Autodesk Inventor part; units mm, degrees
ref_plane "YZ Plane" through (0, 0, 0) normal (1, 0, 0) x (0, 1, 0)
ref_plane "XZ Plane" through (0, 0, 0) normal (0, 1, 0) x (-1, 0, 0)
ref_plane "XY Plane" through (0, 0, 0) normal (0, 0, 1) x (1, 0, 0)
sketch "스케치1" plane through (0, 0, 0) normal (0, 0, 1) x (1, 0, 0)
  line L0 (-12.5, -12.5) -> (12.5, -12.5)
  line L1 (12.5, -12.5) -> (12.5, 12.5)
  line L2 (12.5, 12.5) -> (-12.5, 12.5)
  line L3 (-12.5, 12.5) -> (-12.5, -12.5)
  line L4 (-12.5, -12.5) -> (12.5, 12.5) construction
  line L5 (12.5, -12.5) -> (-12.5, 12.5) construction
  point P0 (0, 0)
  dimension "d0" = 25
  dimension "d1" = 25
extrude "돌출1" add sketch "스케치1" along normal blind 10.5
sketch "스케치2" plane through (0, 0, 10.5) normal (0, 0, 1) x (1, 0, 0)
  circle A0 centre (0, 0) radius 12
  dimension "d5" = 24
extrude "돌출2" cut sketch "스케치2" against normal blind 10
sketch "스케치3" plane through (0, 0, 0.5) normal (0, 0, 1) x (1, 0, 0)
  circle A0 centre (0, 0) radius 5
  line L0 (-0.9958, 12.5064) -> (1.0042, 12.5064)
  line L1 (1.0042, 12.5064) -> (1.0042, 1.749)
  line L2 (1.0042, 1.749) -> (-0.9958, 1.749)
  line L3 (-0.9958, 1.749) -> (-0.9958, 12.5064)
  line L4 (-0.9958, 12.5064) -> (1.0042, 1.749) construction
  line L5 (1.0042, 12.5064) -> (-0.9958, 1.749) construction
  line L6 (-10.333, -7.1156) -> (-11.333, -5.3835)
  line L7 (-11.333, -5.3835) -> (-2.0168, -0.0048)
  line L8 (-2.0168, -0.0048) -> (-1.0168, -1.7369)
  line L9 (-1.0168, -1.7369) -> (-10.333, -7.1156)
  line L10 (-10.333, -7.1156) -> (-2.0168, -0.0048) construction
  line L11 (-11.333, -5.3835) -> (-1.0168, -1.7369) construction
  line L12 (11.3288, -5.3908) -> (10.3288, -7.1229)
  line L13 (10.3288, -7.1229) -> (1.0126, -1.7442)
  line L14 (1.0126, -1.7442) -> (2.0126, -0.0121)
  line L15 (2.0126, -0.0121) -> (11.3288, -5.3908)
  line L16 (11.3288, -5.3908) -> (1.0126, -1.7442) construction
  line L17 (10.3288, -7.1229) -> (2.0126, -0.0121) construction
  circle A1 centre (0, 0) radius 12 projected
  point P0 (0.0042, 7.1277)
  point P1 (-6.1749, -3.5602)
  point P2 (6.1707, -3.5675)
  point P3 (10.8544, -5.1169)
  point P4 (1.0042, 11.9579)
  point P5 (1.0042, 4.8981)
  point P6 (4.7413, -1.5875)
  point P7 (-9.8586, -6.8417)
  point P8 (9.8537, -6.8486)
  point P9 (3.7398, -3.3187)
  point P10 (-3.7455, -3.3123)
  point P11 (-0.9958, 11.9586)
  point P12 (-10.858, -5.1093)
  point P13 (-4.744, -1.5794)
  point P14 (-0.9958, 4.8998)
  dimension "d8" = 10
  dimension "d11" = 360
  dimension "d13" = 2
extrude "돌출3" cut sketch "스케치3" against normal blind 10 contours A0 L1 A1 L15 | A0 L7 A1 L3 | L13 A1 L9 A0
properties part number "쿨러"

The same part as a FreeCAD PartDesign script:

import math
import FreeCAD as App
import Part
import Sketcher
Q = App.Units.Quantity

doc = App.newDocument("Part")
body = doc.addObject("PartDesign::Body", "Body")

sketch1 = doc.addObject("Sketcher::SketchObject", "Sketch")
body.addObject(sketch1)
sketch1.AttachmentSupport = (doc.XY_Plane, [""])
sketch1.MapMode = "FlatFace"
sketch1.addGeometry(Part.LineSegment(App.Vector(-12, 12, 0), App.Vector(-12, -12, 0)), False)
sketch1.addGeometry(Part.LineSegment(App.Vector(-12, -12, 0), App.Vector(12, -12, 0)), False)
sketch1.addGeometry(Part.LineSegment(App.Vector(12, -12, 0), App.Vector(12, 12, 0)), False)
sketch1.addGeometry(Part.LineSegment(App.Vector(12, 12, 0), App.Vector(-12, 12, 0)), False)
sketch1.addConstraint(Sketcher.Constraint("Coincident", 0, 2, 1, 1))
sketch1.addConstraint(Sketcher.Constraint("Coincident", 1, 2, 2, 1))
sketch1.addConstraint(Sketcher.Constraint("Coincident", 2, 2, 3, 1))
sketch1.addConstraint(Sketcher.Constraint("Coincident", 3, 2, 0, 1))
sketch1.addConstraint(Sketcher.Constraint("Vertical", 0))
sketch1.addConstraint(Sketcher.Constraint("Horizontal", 1))
sketch1.addConstraint(Sketcher.Constraint("Vertical", 2))
sketch1.addConstraint(Sketcher.Constraint("Horizontal", 3))
sketch1.addConstraint(Sketcher.Constraint("Symmetric", 0, 2, 2, 2, -1, 1))
sketch1.addConstraint(Sketcher.Constraint("Equal", 3, 0))
sketch1.addConstraint(Sketcher.Constraint("DistanceX", 1, 1, 1, 2, Q("25 mm")))
pad1 = doc.addObject("PartDesign::Pad", "Pad")
body.addObject(pad1)
pad1.Profile = sketch1
pad1.Length = 10.5

sketch2 = doc.addObject("Sketcher::SketchObject", "Sketch001")
body.addObject(sketch2)
sketch2.AttachmentSupport = (doc.XY_Plane, [""])
sketch2.MapMode = "FlatFace"
sketch2.AttachmentOffset = App.Placement(App.Vector(0, 0, 10.5), App.Rotation())
sketch2.addGeometry(Part.Circle(App.Vector(0, 0, 0), App.Vector(0, 0, 1), 12), False)
sketch2.addConstraint(Sketcher.Constraint("Coincident", 0, 3, -1, 1))
sketch2.addConstraint(Sketcher.Constraint("Diameter", 0, Q("24 mm")))
pocket1 = doc.addObject("PartDesign::Pocket", "Pocket")
body.addObject(pocket1)
pocket1.Profile = sketch2
pocket1.Length = 10

sketch3 = doc.addObject("Sketcher::SketchObject", "Sketch002")
body.addObject(sketch3)
sketch3.AttachmentSupport = (doc.XY_Plane, [""])
sketch3.MapMode = "FlatFace"
sketch3.AttachmentOffset = App.Placement(App.Vector(0, 0, 0.5), App.Rotation())
sketch3.addGeometry(Part.ArcOfCircle(Part.Circle(App.Vector(0, 0, 0), App.Vector(0, 0, 1), 5), math.radians(-19), math.radians(78)), False)
sketch3.addGeometry(Part.LineSegment(App.Vector(5, -2, 0), App.Vector(11, -5, 0)), False)
sketch3.addGeometry(Part.ArcOfCircle(Part.Circle(App.Vector(0, 0, 0), App.Vector(0, 0, 1), 12), math.radians(-25), math.radians(85)), False)
sketch3.addGeometry(Part.LineSegment(App.Vector(1, 12, 0), App.Vector(1, 5, 0)), False)
sketch3.addGeometry(Part.ArcOfCircle(Part.Circle(App.Vector(0, 0, 0), App.Vector(0, 0, 1), 5), math.radians(101), math.radians(198)), False)
sketch3.addGeometry(Part.LineSegment(App.Vector(-1, 5, 0), App.Vector(-1, 12, 0)), False)
sketch3.addGeometry(Part.ArcOfCircle(Part.Circle(App.Vector(0, 0, 0), App.Vector(0, 0, 1), 12), math.radians(95), math.radians(205)), False)
sketch3.addGeometry(Part.LineSegment(App.Vector(-11, -5, 0), App.Vector(-5, -2, 0)), False)
sketch3.addGeometry(Part.LineSegment(App.Vector(10, -7, 0), App.Vector(4, -3, 0)), False)
sketch3.addGeometry(Part.ArcOfCircle(Part.Circle(App.Vector(0, 0, 0), App.Vector(0, 0, 1), 5), math.radians(-139), math.radians(-42)), False)
sketch3.addGeometry(Part.LineSegment(App.Vector(-4, -3, 0), App.Vector(-10, -7, 0)), False)
sketch3.addGeometry(Part.ArcOfCircle(Part.Circle(App.Vector(0, 0, 0), App.Vector(0, 0, 1), 12), math.radians(-145), math.radians(-35)), False)
sketch3.addConstraint(Sketcher.Constraint("Coincident", 0, 1, 1, 1))
sketch3.addConstraint(Sketcher.Constraint("Coincident", 1, 2, 2, 1))
sketch3.addConstraint(Sketcher.Constraint("Coincident", 2, 2, 3, 1))
sketch3.addConstraint(Sketcher.Constraint("Coincident", 3, 2, 0, 2))
sketch3.addConstraint(Sketcher.Constraint("Coincident", 4, 1, 5, 1))
sketch3.addConstraint(Sketcher.Constraint("Coincident", 5, 2, 6, 1))
sketch3.addConstraint(Sketcher.Constraint("Coincident", 6, 2, 7, 1))
sketch3.addConstraint(Sketcher.Constraint("Coincident", 7, 2, 4, 2))
sketch3.addConstraint(Sketcher.Constraint("Coincident", 8, 2, 9, 2))
sketch3.addConstraint(Sketcher.Constraint("Coincident", 9, 1, 10, 1))
sketch3.addConstraint(Sketcher.Constraint("Coincident", 10, 2, 11, 1))
sketch3.addConstraint(Sketcher.Constraint("Coincident", 11, 2, 8, 1))
sketch3.addConstraint(Sketcher.Constraint("Vertical", 3))
sketch3.addConstraint(Sketcher.Constraint("Vertical", 5))
sketch3.addConstraint(Sketcher.Constraint("Coincident", 0, 3, -1, 1))
sketch3.addConstraint(Sketcher.Constraint("Coincident", 2, 3, -1, 1))
sketch3.addConstraint(Sketcher.Constraint("Coincident", 4, 3, -1, 1))
sketch3.addConstraint(Sketcher.Constraint("Coincident", 6, 3, -1, 1))
sketch3.addConstraint(Sketcher.Constraint("Coincident", 9, 3, -1, 1))
sketch3.addConstraint(Sketcher.Constraint("Coincident", 11, 3, -1, 1))
sketch3.addConstraint(Sketcher.Constraint("Equal", 0, 4))
sketch3.addConstraint(Sketcher.Constraint("Equal", 2, 6))
sketch3.addConstraint(Sketcher.Constraint("Equal", 4, 9))
sketch3.addConstraint(Sketcher.Constraint("Equal", 6, 11))
sketch3.addConstraint(Sketcher.Constraint("Parallel", 1, 8))
sketch3.addConstraint(Sketcher.Constraint("Parallel", 7, 10))
sketch3.addConstraint(Sketcher.Constraint("Equal", 7, 8))
sketch3.addConstraint(Sketcher.Constraint("Equal", 1, 10))
sketch3.addConstraint(Sketcher.Constraint("Radius", 0, Q("5 mm")))
sketch3.addConstraint(Sketcher.Constraint("Radius", 2, Q("12 mm")))
sketch3.addConstraint(Sketcher.Constraint("DistanceX", 4, 1, 3, 2, Q("2 mm")))
sketch3.addConstraint(Sketcher.Constraint("Angle", 1, Q("-30 deg")))
sketch3.addConstraint(Sketcher.Constraint("Angle", 7, Q("30 deg")))
sketch3.addConstraint(Sketcher.Constraint("DistanceY", 11, 2, 8, 2, Q("3.53 mm")))
sketch3.addConstraint(Sketcher.Constraint("DistanceY", 3, 2, 3, 1, Q("7.0598 mm")))
sketch3.addConstraint(Sketcher.Constraint("DistanceY", 1, 2, -1, 1, Q("5.117 mm")))
pocket2 = doc.addObject("PartDesign::Pocket", "Pocket001")
body.addObject(pocket2)
pocket2.Profile = sketch3
pocket2.Length = 10

doc.recompute()
